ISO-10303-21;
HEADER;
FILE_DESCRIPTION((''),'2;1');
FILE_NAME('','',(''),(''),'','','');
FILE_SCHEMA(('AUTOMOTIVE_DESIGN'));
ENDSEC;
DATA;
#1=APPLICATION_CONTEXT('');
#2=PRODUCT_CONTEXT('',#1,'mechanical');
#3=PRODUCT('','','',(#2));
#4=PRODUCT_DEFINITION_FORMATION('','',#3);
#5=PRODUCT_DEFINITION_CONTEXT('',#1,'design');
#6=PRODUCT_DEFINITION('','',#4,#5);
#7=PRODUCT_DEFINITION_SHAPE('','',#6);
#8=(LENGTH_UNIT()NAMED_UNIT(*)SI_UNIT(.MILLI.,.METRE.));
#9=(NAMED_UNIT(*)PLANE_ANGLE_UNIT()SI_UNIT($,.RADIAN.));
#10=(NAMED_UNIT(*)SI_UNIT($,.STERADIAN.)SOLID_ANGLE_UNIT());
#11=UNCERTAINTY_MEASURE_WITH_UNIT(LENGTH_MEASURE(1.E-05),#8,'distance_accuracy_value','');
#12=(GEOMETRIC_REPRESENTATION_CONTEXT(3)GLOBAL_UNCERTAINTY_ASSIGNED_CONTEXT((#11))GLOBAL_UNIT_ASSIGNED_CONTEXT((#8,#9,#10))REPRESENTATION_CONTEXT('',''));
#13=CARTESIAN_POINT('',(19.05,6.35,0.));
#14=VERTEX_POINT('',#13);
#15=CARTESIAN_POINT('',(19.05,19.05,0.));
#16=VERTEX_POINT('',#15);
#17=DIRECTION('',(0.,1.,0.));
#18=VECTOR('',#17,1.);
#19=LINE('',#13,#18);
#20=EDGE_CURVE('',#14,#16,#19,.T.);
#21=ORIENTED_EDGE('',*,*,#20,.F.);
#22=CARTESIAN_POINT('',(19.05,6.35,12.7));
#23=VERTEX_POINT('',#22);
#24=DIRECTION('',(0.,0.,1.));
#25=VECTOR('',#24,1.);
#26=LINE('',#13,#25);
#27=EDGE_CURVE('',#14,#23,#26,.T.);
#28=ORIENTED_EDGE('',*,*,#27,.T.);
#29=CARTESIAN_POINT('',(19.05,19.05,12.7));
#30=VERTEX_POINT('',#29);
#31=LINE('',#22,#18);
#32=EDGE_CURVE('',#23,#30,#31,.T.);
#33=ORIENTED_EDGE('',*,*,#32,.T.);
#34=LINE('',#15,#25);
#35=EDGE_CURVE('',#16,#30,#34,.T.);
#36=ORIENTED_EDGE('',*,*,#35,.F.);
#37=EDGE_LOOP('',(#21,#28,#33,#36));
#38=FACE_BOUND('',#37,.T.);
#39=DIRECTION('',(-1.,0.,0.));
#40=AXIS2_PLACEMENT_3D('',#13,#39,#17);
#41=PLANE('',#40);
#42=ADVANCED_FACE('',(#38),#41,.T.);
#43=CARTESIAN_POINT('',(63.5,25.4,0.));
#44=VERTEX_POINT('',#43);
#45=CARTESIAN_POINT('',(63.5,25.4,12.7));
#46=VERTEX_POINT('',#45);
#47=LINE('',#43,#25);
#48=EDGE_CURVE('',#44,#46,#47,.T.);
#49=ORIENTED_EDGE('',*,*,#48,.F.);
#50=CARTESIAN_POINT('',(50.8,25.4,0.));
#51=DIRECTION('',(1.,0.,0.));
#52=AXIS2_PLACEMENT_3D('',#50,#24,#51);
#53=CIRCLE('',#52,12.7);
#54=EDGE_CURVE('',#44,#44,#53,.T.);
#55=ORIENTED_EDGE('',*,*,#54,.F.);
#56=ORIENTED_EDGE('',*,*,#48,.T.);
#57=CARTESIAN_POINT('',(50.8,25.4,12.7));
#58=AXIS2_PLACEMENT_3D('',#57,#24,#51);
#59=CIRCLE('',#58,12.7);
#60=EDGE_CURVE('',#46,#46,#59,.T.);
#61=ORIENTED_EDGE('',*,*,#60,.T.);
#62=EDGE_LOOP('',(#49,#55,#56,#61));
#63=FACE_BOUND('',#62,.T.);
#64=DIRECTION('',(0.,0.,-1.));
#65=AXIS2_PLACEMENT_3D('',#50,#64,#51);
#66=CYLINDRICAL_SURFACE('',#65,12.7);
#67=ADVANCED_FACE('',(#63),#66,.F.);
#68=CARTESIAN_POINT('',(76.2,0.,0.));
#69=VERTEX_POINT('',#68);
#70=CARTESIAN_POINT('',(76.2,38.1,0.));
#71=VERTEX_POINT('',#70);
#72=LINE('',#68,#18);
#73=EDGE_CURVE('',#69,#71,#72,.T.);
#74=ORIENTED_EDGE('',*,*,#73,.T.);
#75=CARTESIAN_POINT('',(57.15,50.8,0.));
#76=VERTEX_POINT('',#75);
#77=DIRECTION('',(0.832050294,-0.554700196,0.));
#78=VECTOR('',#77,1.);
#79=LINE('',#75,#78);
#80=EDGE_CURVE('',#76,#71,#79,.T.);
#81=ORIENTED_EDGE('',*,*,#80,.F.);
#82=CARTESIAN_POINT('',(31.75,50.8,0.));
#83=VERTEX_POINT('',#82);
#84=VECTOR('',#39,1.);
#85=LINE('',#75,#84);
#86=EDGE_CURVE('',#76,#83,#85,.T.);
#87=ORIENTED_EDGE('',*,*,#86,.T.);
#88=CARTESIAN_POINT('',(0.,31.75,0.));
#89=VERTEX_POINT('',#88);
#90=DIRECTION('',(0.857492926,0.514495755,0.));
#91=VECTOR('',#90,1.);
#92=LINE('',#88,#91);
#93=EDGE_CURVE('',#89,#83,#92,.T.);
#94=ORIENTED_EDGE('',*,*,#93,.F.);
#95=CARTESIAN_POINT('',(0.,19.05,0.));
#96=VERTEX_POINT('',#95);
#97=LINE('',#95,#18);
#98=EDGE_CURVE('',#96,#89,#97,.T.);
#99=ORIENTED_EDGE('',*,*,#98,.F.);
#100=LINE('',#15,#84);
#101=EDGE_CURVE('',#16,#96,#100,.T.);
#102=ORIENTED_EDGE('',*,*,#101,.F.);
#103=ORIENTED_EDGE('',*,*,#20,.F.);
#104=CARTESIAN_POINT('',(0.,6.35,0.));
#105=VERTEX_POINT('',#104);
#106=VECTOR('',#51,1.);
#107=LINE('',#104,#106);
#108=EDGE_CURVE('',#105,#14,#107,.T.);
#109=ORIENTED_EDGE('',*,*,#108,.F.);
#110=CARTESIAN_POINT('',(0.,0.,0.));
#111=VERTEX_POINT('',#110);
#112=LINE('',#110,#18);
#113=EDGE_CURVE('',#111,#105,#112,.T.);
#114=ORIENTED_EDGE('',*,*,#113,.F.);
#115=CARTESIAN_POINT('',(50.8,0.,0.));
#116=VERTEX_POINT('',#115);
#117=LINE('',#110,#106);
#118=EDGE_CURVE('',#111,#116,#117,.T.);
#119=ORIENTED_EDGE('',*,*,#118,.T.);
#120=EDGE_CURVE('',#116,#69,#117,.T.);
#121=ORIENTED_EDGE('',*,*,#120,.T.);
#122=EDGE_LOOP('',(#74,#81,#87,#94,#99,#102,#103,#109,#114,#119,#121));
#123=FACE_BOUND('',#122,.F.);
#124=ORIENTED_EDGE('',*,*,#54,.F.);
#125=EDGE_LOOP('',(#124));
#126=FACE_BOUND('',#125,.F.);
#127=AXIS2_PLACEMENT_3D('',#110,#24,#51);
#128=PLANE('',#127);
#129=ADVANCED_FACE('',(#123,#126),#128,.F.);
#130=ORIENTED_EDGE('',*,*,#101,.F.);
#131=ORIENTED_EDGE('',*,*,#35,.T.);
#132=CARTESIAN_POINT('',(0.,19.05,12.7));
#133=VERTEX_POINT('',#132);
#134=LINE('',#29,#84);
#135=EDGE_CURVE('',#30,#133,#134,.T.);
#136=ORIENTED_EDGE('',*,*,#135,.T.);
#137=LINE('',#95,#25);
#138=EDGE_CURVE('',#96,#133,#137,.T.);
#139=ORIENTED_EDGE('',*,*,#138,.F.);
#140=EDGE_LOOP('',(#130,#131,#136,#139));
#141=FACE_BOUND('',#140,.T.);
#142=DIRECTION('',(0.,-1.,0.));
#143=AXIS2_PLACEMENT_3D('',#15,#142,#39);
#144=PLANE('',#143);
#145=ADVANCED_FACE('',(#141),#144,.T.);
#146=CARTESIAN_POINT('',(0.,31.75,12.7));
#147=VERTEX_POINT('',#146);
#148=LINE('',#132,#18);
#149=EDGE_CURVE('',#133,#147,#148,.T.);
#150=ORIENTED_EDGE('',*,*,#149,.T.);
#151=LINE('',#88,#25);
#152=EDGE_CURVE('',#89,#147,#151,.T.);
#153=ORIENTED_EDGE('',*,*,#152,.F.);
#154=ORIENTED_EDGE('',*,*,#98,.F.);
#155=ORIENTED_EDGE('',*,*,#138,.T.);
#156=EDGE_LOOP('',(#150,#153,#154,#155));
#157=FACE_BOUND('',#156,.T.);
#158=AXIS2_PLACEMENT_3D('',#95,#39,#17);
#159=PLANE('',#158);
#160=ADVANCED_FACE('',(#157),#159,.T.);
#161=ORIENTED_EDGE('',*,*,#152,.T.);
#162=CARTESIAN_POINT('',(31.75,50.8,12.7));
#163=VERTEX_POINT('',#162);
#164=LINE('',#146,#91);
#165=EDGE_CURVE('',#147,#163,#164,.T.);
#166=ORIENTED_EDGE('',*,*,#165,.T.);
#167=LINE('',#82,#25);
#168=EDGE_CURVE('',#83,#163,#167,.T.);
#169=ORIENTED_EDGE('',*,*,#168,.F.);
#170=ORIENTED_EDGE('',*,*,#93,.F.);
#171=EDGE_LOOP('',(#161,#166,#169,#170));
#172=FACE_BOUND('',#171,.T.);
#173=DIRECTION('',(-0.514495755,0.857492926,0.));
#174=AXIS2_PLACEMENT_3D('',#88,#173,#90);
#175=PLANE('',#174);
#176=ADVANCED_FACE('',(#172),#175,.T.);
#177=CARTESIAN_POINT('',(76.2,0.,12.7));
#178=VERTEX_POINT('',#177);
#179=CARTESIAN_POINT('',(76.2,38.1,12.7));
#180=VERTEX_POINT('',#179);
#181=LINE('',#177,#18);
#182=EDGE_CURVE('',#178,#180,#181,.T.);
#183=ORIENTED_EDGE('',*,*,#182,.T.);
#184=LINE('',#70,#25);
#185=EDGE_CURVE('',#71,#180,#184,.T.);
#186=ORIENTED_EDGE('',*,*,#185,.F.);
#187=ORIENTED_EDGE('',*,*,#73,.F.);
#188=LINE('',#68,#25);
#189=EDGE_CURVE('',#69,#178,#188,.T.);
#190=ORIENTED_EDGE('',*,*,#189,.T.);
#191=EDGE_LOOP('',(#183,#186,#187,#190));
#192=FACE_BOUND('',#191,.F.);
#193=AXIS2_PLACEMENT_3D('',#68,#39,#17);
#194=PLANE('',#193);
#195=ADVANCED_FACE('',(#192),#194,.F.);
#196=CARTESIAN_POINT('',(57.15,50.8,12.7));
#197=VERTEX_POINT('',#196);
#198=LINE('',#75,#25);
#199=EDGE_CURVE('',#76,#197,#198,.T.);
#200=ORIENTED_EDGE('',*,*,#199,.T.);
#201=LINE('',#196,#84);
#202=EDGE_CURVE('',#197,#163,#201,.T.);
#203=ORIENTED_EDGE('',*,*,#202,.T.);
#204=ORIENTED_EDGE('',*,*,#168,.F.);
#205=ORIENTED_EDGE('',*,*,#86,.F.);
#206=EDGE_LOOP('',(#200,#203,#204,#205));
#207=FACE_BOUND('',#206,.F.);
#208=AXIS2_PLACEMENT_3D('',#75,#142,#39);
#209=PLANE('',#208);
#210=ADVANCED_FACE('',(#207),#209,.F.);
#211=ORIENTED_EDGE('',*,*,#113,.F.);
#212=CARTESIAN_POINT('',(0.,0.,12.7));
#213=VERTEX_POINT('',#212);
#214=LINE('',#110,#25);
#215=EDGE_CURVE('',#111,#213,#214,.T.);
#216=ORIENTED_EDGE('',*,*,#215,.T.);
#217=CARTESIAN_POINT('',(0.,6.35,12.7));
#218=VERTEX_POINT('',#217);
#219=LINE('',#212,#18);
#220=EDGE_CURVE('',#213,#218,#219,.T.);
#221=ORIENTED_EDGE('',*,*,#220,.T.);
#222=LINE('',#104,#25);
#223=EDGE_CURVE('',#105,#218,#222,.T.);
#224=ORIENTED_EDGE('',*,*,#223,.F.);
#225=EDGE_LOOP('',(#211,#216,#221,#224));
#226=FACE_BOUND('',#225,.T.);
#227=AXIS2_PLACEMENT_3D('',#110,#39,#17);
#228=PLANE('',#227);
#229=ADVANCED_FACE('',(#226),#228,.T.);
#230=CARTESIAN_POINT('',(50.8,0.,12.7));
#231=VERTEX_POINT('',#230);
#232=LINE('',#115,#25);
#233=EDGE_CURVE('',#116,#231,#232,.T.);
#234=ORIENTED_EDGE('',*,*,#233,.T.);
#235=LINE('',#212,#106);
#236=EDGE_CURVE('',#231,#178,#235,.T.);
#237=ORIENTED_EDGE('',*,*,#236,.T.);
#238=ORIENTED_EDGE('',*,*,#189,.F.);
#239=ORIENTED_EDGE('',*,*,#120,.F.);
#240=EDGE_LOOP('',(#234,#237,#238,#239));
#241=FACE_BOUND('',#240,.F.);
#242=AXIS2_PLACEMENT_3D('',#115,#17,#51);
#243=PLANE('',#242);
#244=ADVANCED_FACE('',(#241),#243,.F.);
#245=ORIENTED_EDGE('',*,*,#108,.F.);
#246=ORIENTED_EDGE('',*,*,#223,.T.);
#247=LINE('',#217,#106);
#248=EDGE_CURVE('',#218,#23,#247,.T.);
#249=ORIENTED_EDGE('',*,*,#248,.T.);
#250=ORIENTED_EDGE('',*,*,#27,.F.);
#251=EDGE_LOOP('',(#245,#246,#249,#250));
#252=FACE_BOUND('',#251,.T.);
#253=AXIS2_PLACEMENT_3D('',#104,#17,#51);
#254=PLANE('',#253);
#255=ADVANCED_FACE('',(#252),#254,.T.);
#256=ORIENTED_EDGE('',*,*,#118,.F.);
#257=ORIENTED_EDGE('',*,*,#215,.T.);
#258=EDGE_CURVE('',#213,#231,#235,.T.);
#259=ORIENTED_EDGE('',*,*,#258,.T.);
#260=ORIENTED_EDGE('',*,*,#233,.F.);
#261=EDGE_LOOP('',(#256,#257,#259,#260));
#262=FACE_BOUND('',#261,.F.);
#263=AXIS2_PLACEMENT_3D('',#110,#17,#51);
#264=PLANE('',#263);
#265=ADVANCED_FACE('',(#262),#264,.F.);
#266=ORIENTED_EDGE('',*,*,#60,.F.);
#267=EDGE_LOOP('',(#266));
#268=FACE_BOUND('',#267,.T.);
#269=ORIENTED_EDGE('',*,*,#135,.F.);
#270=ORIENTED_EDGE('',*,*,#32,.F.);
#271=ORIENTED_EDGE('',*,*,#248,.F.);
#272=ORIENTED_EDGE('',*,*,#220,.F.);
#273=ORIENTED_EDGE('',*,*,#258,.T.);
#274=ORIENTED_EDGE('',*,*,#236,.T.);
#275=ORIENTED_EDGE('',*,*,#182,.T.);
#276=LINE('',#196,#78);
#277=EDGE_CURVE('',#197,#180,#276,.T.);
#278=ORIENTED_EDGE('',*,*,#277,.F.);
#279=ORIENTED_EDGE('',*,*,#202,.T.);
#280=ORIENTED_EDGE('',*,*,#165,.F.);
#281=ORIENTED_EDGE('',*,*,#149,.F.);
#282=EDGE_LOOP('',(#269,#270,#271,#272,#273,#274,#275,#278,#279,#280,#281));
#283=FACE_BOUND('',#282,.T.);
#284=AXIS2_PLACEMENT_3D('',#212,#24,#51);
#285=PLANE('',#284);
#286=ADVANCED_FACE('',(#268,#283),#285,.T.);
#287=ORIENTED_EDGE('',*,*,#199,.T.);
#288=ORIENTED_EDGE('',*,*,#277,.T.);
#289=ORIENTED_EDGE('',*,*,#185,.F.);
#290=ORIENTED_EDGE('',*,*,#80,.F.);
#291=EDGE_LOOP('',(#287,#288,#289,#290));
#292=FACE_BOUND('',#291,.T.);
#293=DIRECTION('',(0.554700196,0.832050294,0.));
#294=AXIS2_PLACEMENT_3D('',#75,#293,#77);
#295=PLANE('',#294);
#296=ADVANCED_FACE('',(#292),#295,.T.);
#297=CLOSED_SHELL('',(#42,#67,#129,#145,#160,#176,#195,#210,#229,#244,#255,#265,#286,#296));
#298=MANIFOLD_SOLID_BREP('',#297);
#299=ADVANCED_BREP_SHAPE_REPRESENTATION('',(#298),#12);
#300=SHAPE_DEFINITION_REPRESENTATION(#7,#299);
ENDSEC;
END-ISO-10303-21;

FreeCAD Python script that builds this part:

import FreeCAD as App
import Part
import Sketcher
Q = App.Units.Quantity

doc = App.newDocument("Part")
body = doc.addObject("PartDesign::Body", "Body")

# Sketch on XY plane
sketch1 = body.newObject("Sketcher::SketchObject", "Sketch")
sketch1.AttachmentSupport = (doc.getObject("XY_Plane"), [""])
sketch1.MapMode = "FlatFace"
sketch1.addGeometry(Part.LineSegment(App.Vector(0, 6, 0), App.Vector(0, 0, 0)), False)
sketch1.addGeometry(Part.LineSegment(App.Vector(0, 0, 0), App.Vector(76, 0, 0)), False)
sketch1.addGeometry(Part.LineSegment(App.Vector(76, 0, 0), App.Vector(76, 38, 0)), False)
sketch1.addGeometry(Part.LineSegment(App.Vector(76, 38, 0), App.Vector(57, 51, 0)), False)
sketch1.addGeometry(Part.LineSegment(App.Vector(57, 51, 0), App.Vector(32, 51, 0)), False)
sketch1.addGeometry(Part.LineSegment(App.Vector(32, 51, 0), App.Vector(0, 32, 0)), False)
sketch1.addGeometry(Part.LineSegment(App.Vector(0, 32, 0), App.Vector(0, 19, 0)), False)
sketch1.addGeometry(Part.LineSegment(App.Vector(0, 19, 0), App.Vector(19, 19, 0)), False)
sketch1.addGeometry(Part.LineSegment(App.Vector(19, 19, 0), App.Vector(19, 6, 0)), False)
sketch1.addGeometry(Part.LineSegment(App.Vector(19, 6, 0), App.Vector(0, 6, 0)), False)
sketch1.addGeometry(Part.Circle(App.Vector(51, 25, 0), App.Vector(0, 0, 1), 13), False)
sketch1.addConstraint(Sketcher.Constraint("Coincident", 0, 2, 1, 1))
sketch1.addConstraint(Sketcher.Constraint("Coincident", 1, 2, 2, 1))
sketch1.addConstraint(Sketcher.Constraint("Coincident", 2, 2, 3, 1))
sketch1.addConstraint(Sketcher.Constraint("Coincident", 3, 2, 4, 1))
sketch1.addConstraint(Sketcher.Constraint("Coincident", 4, 2, 5, 1))
sketch1.addConstraint(Sketcher.Constraint("Coincident", 5, 2, 6, 1))
sketch1.addConstraint(Sketcher.Constraint("Coincident", 6, 2, 7, 1))
sketch1.addConstraint(Sketcher.Constraint("Coincident", 7, 2, 8, 1))
sketch1.addConstraint(Sketcher.Constraint("Coincident", 8, 2, 9, 1))
sketch1.addConstraint(Sketcher.Constraint("Coincident", 9, 2, 0, 1))
sketch1.addConstraint(Sketcher.Constraint("Vertical", 0))
sketch1.addConstraint(Sketcher.Constraint("Horizontal", 1))
sketch1.addConstraint(Sketcher.Constraint("Vertical", 2))
sketch1.addConstraint(Sketcher.Constraint("Horizontal", 4))
sketch1.addConstraint(Sketcher.Constraint("Vertical", 6))
sketch1.addConstraint(Sketcher.Constraint("Horizontal", 7))
sketch1.addConstraint(Sketcher.Constraint("Vertical", 8))
sketch1.addConstraint(Sketcher.Constraint("Horizontal", 9))
sketch1.addConstraint(Sketcher.Constraint("Coincident", 0, 2, -1, 1))
sketch1.addConstraint(Sketcher.Constraint("PointOnObject", 5, 2, -2))
sketch1.addConstraint(Sketcher.Constraint("Equal", 6, 8))
sketch1.addConstraint(Sketcher.Constraint("Diameter", 10, Q("1 in")))
sketch1.addConstraint(Sketcher.Constraint("DistanceX", 1, 1, 1, 2, Q("3 in")))
sketch1.addConstraint(Sketcher.Constraint("DistanceX", 4, 2, 4, 1, Q("1 in")))
sketch1.addConstraint(Sketcher.Constraint("DistanceY", 2, 1, 2, 2, Q("1.5 in")))
sketch1.addConstraint(Sketcher.Constraint("DistanceY", 6, 2, 6, 1, Q("0.5 in")))
sketch1.addConstraint(Sketcher.Constraint("DistanceY", -1, 1, 10, 3, Q("1 in")))
sketch1.addConstraint(Sketcher.Constraint("DistanceX", 10, 3, 1, 2, Q("1 in")))
sketch1.addConstraint(Sketcher.Constraint("DistanceY", 10, 3, 3, 2, Q("1 in")))
sketch1.addConstraint(Sketcher.Constraint("DistanceX", 7, 1, 7, 2, Q("0.75 in")))
sketch1.addConstraint(Sketcher.Constraint("DistanceY", 0, 2, 0, 1, Q("0.25 in")))
sketch1.addConstraint(Sketcher.Constraint("DistanceX", 7, 2, 4, 2, Q("0.5 in")))
pad1 = body.newObject("PartDesign::Pad", "Pad")
pad1.Profile = sketch1
pad1.Length = Q("0.5 in")

doc.recompute()
